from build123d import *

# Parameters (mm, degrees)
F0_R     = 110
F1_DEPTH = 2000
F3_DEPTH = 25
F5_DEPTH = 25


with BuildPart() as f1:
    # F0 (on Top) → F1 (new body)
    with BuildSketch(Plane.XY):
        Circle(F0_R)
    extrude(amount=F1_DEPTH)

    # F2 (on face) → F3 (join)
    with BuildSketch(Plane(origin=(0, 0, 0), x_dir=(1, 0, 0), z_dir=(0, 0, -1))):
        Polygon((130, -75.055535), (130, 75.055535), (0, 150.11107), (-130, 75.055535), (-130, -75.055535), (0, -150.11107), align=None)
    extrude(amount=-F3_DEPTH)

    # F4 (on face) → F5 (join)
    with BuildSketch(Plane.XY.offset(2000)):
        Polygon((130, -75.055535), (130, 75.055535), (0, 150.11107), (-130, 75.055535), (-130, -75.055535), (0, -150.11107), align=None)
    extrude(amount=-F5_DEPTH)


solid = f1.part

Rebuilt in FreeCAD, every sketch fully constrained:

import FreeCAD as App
import Part
import Sketcher

V = App.Vector
Q = App.Units.Quantity


def add_polygon(sketch, points):
    """Adds a closed chain of lines whose ends are joined by coincident constraints."""
    first, n = sketch.GeometryCount, len(points)
    for a, b in zip(points, points[1:] + points[:1]):
        sketch.addGeometry(Part.LineSegment(App.Vector(*a, 0), App.Vector(*b, 0)), False)
    for i in range(n):
        sketch.addConstraint(Sketcher.Constraint("Coincident", first + i, 2, first + (i + 1) % n, 1))

doc = App.newDocument("Part")
params = doc.addObject("Spreadsheet::Sheet", "Params")
for row, (alias, value) in enumerate([
    ("sketch1_diameter", "220 mm"),
    ("pad1_length", "2000 mm"),
    ("pad2_length", "25 mm"),
    ("pad3_length", "25 mm"),
], start=1):
    params.set(f"A{row}", alias)
    params.set(f"B{row}", "=" + value)
    params.setAlias(f"B{row}", alias)

body = doc.addObject("PartDesign::Body", "Body")

# Sketch on XY plane
sketch1 = body.newObject("Sketcher::SketchObject", "Sketch")
sketch1.AttachmentSupport = (doc.getObject("XY_Plane"), [""])
sketch1.MapMode = "FlatFace"
sketch1.addGeometry(Part.Circle(V(0, 0, 0), V(0, 0, 1), 110), False)
sketch1.addConstraint([
    Sketcher.Constraint("Coincident", 0, 3, -1, 1),
    Sketcher.Constraint("Diameter", 0, 220.0),
])
sketch1.setExpression("Constraints[1]", "Params.sketch1_diameter")
pad1 = body.newObject("PartDesign::Pad", "Pad")
pad1.Profile = sketch1
pad1.setExpression("Length", "Params.pad1_length")

# Sketch on XY plane
sketch2 = body.newObject("Sketcher::SketchObject", "Sketch001")
sketch2.AttachmentSupport = (doc.getObject("XY_Plane"), [""])
sketch2.MapMode = "FlatFace"
add_polygon(sketch2, [(130, 75), (130, -75), (0, -150), (-130, -75), (-130, 75), (0, 150)])  # lines 0-5
sketch2.addConstraint([
    Sketcher.Constraint("Vertical", 0),
    Sketcher.Constraint("Vertical", 3),
    Sketcher.Constraint("Symmetric", 0, 2, 3, 2, -1, 1),
    Sketcher.Constraint("Symmetric", 1, 2, 4, 2, -1, 1),
    Sketcher.Constraint("PointOnObject", 1, 2, -2),
    Sketcher.Constraint("Parallel", 2, 5),
    Sketcher.Constraint("Horizontal", 0, 2, 2, 2),
    Sketcher.Constraint("Angle", 1, Q("-150 deg")),
    Sketcher.Constraint("DistanceX", -1, 1, 0, 2, 130.0),
    Sketcher.Constraint("DistanceY", 0, 2, 0, 1, 150.11107),
])
pad2 = body.newObject("PartDesign::Pad", "Pad001")
pad2.Profile = sketch2
pad2.setExpression("Length", "Params.pad2_length")

# Sketch on XY plane
sketch3 = body.newObject("Sketcher::SketchObject", "Sketch002")
sketch3.AttachmentSupport = (doc.getObject("XY_Plane"), [""])
sketch3.MapMode = "FlatFace"
sketch3.AttachmentOffset = App.Placement(V(0, 0, 2000), App.Rotation())
add_polygon(sketch3, [(130, -75), (130, 75), (0, 150), (-130, 75), (-130, -75), (0, -150)])  # lines 0-5
sketch3.addConstraint([
    Sketcher.Constraint("Vertical", 0),
    Sketcher.Constraint("Vertical", 3),
    Sketcher.Constraint("Symmetric", 0, 2, 3, 2, -1, 1),
    Sketcher.Constraint("Symmetric", 1, 2, 4, 2, -1, 1),
    Sketcher.Constraint("PointOnObject", 1, 2, -2),
    Sketcher.Constraint("Parallel", 2, 5),
    Sketcher.Constraint("Horizontal", 0, 2, 2, 2),
    Sketcher.Constraint("Angle", 1, Q("150 deg")),
    Sketcher.Constraint("DistanceX", -1, 1, 0, 2, 130.0),
    Sketcher.Constraint("DistanceY", 0, 1, 0, 2, 150.11107),
])
pad3 = body.newObject("PartDesign::Pad", "Pad002")
pad3.Profile = sketch3
pad3.setExpression("Length", "Params.pad3_length")
pad3.Reversed = True

doc.recompute()
